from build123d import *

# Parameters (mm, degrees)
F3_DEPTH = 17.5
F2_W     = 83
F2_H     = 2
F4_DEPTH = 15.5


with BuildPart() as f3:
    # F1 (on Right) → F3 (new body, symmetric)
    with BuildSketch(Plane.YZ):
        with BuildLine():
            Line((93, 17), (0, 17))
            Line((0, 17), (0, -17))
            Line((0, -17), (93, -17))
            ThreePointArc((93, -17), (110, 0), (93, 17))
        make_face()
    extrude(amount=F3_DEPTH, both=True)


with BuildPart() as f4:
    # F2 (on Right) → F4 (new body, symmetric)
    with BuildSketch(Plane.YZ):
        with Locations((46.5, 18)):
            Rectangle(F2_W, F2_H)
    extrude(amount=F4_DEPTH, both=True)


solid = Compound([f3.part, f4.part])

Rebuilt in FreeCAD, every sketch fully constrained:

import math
import FreeCAD as App
import Part
import Sketcher

V = App.Vector


def add_polygon(sketch, points):
    """Adds a closed chain of lines whose ends are joined by coincident constraints."""
    first, n = sketch.GeometryCount, len(points)
    for a, b in zip(points, points[1:] + points[:1]):
        sketch.addGeometry(Part.LineSegment(App.Vector(*a, 0), App.Vector(*b, 0)), False)
    for i in range(n):
        sketch.addConstraint(Sketcher.Constraint("Coincident", first + i, 2, first + (i + 1) % n, 1))

doc = App.newDocument("Part")
params = doc.addObject("Spreadsheet::Sheet", "Params")
for row, (alias, value) in enumerate([
    ("sketch1_radius", "17 mm"),
    ("sketch1_width", "93 mm"),
    ("pad1_length", "35 mm"),
    ("sketch2_width", "83 mm"),
    ("sketch2_height", "2 mm"),
    ("pad2_length", "31 mm"),
], start=1):
    params.set(f"A{row}", alias)
    params.set(f"B{row}", "=" + value)
    params.setAlias(f"B{row}", alias)

body = doc.addObject("PartDesign::Body", "Body")

sketch1 = doc.addObject("Sketcher::SketchObject", "Sketch")
body.addObject(sketch1)
sketch1.AttachmentSupport = (doc.YZ_Plane, [""])
sketch1.MapMode = "FlatFace"
sketch1.addGeometry([
    Part.LineSegment(V(93, 17, 0), V(0, 17, 0)),
    Part.LineSegment(V(0, 17, 0), V(0, -17, 0)),
    Part.LineSegment(V(0, -17, 0), V(93, -17, 0)),
    Part.ArcOfCircle(Part.Circle(V(93, 0, 0), V(0, 0, 1), 17), math.radians(-90), math.radians(90)),
], False)
sketch1.addConstraint([
    Sketcher.Constraint("Coincident", 0, 2, 1, 1),
    Sketcher.Constraint("Coincident", 1, 2, 2, 1),
    Sketcher.Constraint("Tangent", 2, 2, 3, 1),
    Sketcher.Constraint("Tangent", 3, 2, 0, 1),
    Sketcher.Constraint("Horizontal", 0),
    Sketcher.Constraint("Vertical", 1),
    Sketcher.Constraint("Horizontal", 2),
    Sketcher.Constraint("Symmetric", 0, 2, 1, 2, -1, 1),
    Sketcher.Constraint("Radius", 3, 17.0),
    Sketcher.Constraint("DistanceX", 0, 2, 0, 1, 93.0),
])
sketch1.setExpression("Constraints[8]", "Params.sketch1_radius")
sketch1.setExpression("Constraints[9]", "Params.sketch1_width")
pad1 = doc.addObject("PartDesign::Pad", "Pad")
body.addObject(pad1)
pad1.Profile = sketch1
pad1.setExpression("Length", "Params.pad1_length")
pad1.Midplane = True
body2 = doc.addObject("PartDesign::Body", "Body001")

sketch2 = doc.addObject("Sketcher::SketchObject", "Sketch001")
body2.addObject(sketch2)
sketch2.AttachmentSupport = (doc.getObject("YZ_Plane001"), [""])
sketch2.MapMode = "FlatFace"
add_polygon(sketch2, [(5, 19), (5, 17), (88, 17), (88, 19)])
sketch2.addConstraint([
    Sketcher.Constraint("Vertical", 0),
    Sketcher.Constraint("Horizontal", 1),
    Sketcher.Constraint("Vertical", 2),
    Sketcher.Constraint("Horizontal", 3),
    Sketcher.Constraint("DistanceX", 1, 1, 1, 2, 83.0),
    Sketcher.Constraint("DistanceY", 0, 2, 0, 1, 2.0),
    Sketcher.Constraint("DistanceX", -1, 1, 0, 2, 5.0),
    Sketcher.Constraint("DistanceY", -1, 1, 0, 2, 17.0),
])
sketch2.setExpression("Constraints[8]", "Params.sketch2_width")
sketch2.setExpression("Constraints[9]", "Params.sketch2_height")
pad2 = doc.addObject("PartDesign::Pad", "Pad001")
body2.addObject(pad2)
pad2.Profile = sketch2
pad2.setExpression("Length", "Params.pad2_length")
pad2.Midplane = True

doc.recompute()
